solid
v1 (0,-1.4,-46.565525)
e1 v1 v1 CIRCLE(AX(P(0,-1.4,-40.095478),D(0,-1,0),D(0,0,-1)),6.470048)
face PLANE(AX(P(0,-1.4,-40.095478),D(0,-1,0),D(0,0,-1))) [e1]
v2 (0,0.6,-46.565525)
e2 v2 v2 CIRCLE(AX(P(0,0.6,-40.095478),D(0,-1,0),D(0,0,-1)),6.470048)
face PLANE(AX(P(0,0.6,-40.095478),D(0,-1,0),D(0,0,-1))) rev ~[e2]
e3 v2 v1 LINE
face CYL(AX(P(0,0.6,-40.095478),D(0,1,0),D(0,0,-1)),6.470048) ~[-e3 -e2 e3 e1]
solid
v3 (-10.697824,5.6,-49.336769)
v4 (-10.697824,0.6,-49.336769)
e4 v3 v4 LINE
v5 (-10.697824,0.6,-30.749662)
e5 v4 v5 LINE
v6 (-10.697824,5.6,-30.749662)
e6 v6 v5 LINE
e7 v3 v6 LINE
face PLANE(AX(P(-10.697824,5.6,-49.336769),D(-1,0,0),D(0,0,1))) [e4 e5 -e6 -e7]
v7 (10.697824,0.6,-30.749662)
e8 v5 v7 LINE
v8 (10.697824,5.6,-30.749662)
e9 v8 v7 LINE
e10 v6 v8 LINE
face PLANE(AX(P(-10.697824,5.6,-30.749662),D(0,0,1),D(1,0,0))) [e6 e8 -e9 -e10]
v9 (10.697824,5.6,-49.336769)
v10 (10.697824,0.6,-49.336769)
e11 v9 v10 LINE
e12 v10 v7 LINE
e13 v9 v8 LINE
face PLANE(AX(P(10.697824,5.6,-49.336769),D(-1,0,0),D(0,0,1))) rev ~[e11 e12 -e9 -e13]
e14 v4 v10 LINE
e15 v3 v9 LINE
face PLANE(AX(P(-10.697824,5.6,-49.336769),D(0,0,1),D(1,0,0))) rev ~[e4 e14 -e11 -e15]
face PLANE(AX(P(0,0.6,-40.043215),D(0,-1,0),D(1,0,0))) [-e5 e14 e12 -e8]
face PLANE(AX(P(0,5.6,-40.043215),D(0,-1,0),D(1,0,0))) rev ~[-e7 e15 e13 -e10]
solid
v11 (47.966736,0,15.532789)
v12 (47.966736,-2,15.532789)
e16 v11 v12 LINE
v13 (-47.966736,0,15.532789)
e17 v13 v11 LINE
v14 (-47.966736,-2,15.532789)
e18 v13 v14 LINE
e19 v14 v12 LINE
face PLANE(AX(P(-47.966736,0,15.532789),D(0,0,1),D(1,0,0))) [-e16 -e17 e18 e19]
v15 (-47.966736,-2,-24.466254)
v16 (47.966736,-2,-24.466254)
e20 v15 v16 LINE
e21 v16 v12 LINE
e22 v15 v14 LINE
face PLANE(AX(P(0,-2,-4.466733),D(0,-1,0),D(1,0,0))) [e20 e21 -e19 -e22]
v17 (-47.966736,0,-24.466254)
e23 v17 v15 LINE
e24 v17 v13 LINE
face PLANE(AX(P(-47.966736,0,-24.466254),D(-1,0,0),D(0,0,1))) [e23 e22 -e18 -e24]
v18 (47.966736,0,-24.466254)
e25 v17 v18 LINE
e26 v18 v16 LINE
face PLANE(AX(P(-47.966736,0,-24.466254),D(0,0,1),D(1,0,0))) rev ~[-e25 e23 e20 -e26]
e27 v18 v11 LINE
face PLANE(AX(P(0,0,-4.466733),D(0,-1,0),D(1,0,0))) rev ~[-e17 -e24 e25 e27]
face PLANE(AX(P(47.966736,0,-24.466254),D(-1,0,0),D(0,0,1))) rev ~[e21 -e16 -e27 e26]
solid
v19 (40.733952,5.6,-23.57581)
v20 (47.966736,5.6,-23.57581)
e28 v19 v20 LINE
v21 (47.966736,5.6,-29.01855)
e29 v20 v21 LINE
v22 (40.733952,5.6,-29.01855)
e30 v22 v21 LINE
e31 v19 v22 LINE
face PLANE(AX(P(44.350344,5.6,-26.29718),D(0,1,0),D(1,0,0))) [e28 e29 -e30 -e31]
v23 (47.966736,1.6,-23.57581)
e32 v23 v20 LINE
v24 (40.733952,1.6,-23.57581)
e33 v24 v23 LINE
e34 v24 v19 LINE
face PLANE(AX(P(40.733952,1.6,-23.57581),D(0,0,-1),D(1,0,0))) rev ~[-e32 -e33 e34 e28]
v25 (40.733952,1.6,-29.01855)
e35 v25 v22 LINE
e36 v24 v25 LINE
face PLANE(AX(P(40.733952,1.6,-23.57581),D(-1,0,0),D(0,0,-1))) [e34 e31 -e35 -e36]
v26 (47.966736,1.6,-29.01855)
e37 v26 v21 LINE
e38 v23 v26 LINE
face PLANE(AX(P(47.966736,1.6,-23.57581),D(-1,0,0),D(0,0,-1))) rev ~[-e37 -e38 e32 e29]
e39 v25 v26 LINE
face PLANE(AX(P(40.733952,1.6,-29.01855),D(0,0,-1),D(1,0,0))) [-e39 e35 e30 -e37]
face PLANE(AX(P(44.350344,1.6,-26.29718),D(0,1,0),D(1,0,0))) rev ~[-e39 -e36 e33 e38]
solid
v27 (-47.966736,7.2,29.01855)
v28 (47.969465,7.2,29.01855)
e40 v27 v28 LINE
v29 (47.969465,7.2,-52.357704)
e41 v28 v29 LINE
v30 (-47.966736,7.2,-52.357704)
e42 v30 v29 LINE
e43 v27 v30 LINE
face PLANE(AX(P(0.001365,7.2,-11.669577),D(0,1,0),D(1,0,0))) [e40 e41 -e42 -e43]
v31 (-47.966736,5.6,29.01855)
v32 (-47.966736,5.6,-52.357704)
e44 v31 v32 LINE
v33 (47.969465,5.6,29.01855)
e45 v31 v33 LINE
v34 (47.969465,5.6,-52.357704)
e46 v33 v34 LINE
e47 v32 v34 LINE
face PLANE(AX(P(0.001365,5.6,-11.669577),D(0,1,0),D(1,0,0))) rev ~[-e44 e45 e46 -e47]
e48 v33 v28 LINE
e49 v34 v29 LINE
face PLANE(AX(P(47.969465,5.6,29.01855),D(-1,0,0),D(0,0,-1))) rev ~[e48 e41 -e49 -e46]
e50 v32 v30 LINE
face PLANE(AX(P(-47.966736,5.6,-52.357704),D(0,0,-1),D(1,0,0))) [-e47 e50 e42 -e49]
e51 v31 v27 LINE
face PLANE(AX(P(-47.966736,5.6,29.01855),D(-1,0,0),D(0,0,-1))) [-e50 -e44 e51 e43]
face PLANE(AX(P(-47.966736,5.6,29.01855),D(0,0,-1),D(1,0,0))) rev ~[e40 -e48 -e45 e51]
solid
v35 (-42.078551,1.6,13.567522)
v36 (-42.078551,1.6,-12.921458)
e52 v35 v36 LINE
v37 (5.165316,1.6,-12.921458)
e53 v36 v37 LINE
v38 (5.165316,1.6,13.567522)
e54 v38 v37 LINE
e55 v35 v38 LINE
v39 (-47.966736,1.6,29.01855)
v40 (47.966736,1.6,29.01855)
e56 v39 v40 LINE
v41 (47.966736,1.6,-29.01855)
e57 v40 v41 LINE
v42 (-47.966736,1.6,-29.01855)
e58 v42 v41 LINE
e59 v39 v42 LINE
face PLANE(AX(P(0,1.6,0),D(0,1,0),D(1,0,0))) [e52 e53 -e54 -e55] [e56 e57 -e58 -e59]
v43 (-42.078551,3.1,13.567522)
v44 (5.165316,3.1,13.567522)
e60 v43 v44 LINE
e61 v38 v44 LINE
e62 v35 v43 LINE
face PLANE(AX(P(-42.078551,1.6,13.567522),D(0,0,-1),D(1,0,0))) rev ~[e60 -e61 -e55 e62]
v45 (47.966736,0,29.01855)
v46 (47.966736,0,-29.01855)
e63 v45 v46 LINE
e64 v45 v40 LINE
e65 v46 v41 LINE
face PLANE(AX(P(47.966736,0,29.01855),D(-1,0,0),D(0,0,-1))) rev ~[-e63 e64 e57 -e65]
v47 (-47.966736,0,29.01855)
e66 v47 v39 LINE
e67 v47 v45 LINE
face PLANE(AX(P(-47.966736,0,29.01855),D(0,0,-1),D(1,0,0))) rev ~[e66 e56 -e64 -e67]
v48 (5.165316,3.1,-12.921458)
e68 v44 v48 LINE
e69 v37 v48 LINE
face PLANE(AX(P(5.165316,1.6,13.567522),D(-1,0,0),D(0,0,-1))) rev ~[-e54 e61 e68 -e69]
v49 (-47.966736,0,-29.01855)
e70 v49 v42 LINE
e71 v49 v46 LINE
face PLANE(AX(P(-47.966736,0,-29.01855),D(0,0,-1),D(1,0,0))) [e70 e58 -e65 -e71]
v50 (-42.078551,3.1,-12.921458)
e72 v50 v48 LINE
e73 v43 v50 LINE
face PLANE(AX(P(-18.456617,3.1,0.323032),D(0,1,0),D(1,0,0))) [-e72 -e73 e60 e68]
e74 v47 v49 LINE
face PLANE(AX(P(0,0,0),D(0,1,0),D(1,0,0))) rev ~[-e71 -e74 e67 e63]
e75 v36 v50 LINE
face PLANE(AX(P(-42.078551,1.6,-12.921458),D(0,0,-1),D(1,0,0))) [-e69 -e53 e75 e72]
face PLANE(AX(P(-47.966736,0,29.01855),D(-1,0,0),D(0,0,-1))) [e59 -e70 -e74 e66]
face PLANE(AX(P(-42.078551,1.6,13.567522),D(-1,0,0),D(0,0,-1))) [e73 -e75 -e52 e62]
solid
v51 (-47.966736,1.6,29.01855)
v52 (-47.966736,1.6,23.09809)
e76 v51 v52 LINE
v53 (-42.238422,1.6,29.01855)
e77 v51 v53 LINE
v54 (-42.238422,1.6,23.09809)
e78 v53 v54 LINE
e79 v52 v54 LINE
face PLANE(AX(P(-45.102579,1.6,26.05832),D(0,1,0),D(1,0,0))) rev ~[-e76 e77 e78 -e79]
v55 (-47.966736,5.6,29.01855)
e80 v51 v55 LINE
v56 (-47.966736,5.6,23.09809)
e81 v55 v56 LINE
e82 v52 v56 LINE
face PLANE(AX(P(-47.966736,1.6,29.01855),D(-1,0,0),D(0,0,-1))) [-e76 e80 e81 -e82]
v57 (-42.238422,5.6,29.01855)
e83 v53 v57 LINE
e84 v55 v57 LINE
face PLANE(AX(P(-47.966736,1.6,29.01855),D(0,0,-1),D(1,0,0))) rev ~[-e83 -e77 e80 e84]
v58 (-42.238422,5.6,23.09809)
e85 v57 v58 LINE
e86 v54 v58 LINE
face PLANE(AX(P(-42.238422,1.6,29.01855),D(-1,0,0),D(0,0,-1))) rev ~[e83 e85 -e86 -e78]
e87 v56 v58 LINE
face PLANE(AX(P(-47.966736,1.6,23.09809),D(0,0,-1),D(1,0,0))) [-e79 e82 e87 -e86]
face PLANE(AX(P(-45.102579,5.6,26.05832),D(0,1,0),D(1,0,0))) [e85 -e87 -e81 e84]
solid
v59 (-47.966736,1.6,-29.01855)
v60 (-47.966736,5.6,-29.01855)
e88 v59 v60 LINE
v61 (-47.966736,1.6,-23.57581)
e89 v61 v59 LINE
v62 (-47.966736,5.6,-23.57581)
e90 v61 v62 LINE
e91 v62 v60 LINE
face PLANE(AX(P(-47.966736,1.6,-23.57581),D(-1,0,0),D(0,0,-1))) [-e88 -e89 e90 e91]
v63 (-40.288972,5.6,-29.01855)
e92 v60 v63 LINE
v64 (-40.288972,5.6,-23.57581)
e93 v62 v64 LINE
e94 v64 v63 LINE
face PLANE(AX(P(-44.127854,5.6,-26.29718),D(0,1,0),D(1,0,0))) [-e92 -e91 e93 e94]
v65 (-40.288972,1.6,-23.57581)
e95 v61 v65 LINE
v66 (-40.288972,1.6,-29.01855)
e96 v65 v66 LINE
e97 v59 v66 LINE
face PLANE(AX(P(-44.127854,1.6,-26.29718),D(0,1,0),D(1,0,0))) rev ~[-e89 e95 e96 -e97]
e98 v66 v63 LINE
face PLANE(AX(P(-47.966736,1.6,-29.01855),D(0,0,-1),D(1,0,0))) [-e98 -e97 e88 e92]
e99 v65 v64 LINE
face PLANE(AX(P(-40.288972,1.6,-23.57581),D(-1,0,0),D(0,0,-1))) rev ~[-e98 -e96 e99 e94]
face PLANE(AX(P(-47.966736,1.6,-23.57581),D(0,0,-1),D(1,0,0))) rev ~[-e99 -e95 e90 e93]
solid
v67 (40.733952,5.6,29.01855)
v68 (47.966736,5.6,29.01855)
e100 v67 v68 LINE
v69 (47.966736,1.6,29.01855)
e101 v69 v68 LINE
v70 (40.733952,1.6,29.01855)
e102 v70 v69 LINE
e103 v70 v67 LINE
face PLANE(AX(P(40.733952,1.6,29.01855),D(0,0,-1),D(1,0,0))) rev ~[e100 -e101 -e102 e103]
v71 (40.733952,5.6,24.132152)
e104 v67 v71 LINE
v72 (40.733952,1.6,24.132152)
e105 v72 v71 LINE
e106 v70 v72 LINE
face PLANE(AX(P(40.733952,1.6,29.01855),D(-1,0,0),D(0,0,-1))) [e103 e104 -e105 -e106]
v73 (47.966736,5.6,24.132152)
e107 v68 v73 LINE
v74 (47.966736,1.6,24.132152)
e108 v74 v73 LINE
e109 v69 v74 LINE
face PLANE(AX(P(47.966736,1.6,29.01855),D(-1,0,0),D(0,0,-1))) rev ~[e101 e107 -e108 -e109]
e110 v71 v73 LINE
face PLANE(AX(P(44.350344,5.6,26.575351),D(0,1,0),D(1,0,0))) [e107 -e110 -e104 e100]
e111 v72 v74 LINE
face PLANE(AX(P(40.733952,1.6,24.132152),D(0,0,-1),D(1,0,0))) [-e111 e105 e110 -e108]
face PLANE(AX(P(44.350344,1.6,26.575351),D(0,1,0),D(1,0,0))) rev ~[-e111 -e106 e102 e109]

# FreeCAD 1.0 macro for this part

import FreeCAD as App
import Part
import Sketcher

V = App.Vector

doc = App.newDocument("Part")
body = doc.addObject("PartDesign::Body", "Body")

# Sketch on XZ plane
sketch1 = body.newObject("Sketcher::SketchObject", "Sketch")
sketch1.AttachmentSupport = (doc.getObject("XZ_Plane"), [""])
sketch1.MapMode = "FlatFace"
sketch1.addGeometry([
    Part.LineSegment(V(-47.966736, -29.01855, 0), V(-47.966736, 29.01855, 0)),
    Part.LineSegment(V(-47.966736, 29.01855, 0), V(47.966736, 29.01855, 0)),
    Part.LineSegment(V(47.966736, 29.01855, 0), V(47.966736, -29.01855, 0)),
    Part.LineSegment(V(47.966736, -29.01855, 0), V(-47.966736, -29.01855, 0)),
], False)
sketch1.addConstraint([
    Sketcher.Constraint("Coincident", 0, 2, 1, 1),
    Sketcher.Constraint("Coincident", 1, 2, 2, 1),
    Sketcher.Constraint("Coincident", 2, 2, 3, 1),
    Sketcher.Constraint("Coincident", 3, 2, 0, 1),
    Sketcher.Constraint("Vertical", 0),
    Sketcher.Constraint("Horizontal", 1),
    Sketcher.Constraint("Vertical", 2),
    Sketcher.Constraint("Horizontal", 3),
    Sketcher.Constraint("Symmetric", 0, 2, 2, 2, -1, 1),
    Sketcher.Constraint("DistanceY", 0, 1, 0, 2, 58.0371),
    Sketcher.Constraint("DistanceX", 1, 1, 1, 2, 95.933471),
])
pad1 = body.newObject("PartDesign::Pad", "Pad")
pad1.Profile = sketch1
pad1.Length = 1.6
pad1.Reversed = True

# Sketch on XZ plane
sketch2 = body.newObject("Sketcher::SketchObject", "Sketch001")
sketch2.AttachmentSupport = (doc.getObject("XZ_Plane"), [""])
sketch2.MapMode = "FlatFace"
sketch2.AttachmentOffset = App.Placement(V(0, 0, -1.6), App.Rotation())
sketch2.addGeometry([
    Part.LineSegment(V(-42.078551, -12.921458, 0), V(-42.078551, 13.567522, 0)),
    Part.LineSegment(V(-42.078551, 13.567522, 0), V(5.165316, 13.567522, 0)),
    Part.LineSegment(V(5.165316, 13.567522, 0), V(5.165316, -12.921458, 0)),
    Part.LineSegment(V(5.165316, -12.921458, 0), V(-42.078551, -12.921458, 0)),
], False)
sketch2.addConstraint([
    Sketcher.Constraint("Coincident", 0, 2, 1, 1),
    Sketcher.Constraint("Coincident", 1, 2, 2, 1),
    Sketcher.Constraint("Coincident", 2, 2, 3, 1),
    Sketcher.Constraint("Coincident", 3, 2, 0, 1),
    Sketcher.Constraint("Vertical", 0),
    Sketcher.Constraint("Horizontal", 1),
    Sketcher.Constraint("Vertical", 2),
    Sketcher.Constraint("Horizontal", 3),
    Sketcher.Constraint("DistanceY", 0, 1, 0, 2, 26.48898),
    Sketcher.Constraint("DistanceX", 1, 1, 1, 2, 47.243868),
    Sketcher.Constraint("DistanceX", 0, 2, -1, 1, 42.078551),
    Sketcher.Constraint("DistanceY", -1, 1, 0, 2, 13.567522),
])
pad2 = body.newObject("PartDesign::Pad", "Pad001")
pad2.Profile = sketch2
pad2.Length = 1.5
pad2.Reversed = True
body2 = doc.addObject("PartDesign::Body", "Body001")

# Sketch on XZ plane
sketch3 = body2.newObject("Sketcher::SketchObject", "Sketch002")
sketch3.AttachmentSupport = (doc.getObject("XZ_Plane001"), [""])
sketch3.MapMode = "FlatFace"
sketch3.AttachmentOffset = App.Placement(V(0, 0, -1.6), App.Rotation())
sketch3.addGeometry([
    Part.LineSegment(V(-47.966736, -29.01855, 0), V(-47.966736, -23.57581, 0)),
    Part.LineSegment(V(-47.966736, -23.57581, 0), V(-40.288972, -23.57581, 0)),
    Part.LineSegment(V(-40.288972, -23.57581, 0), V(-40.288972, -29.01855, 0)),
    Part.LineSegment(V(-40.288972, -29.01855, 0), V(-47.966736, -29.01855, 0)),
], False)
sketch3.addConstraint([
    Sketcher.Constraint("Coincident", 0, 2, 1, 1),
    Sketcher.Constraint("Coincident", 1, 2, 2, 1),
    Sketcher.Constraint("Coincident", 2, 2, 3, 1),
    Sketcher.Constraint("Coincident", 3, 2, 0, 1),
    Sketcher.Constraint("Vertical", 0),
    Sketcher.Constraint("Horizontal", 1),
    Sketcher.Constraint("Vertical", 2),
    Sketcher.Constraint("Horizontal", 3),
    Sketcher.Constraint("DistanceY", 0, 1, 0, 2, 5.44274),
    Sketcher.Constraint("DistanceX", 1, 1, 1, 2, 7.677763),
    Sketcher.Constraint("DistanceY", 0, 2, -1, 1, 23.57581),
    Sketcher.Constraint("DistanceX", 0, 2, -1, 1, 47.966736),
])
pad3 = body2.newObject("PartDesign::Pad", "Pad002")
pad3.Profile = sketch3
pad3.Length = 4
pad3.Reversed = True
body3 = doc.addObject("PartDesign::Body", "Body002")

# Sketch on XZ plane
sketch4 = body3.newObject("Sketcher::SketchObject", "Sketch003")
sketch4.AttachmentSupport = (doc.getObject("XZ_Plane002"), [""])
sketch4.MapMode = "FlatFace"
sketch4.AttachmentOffset = App.Placement(V(0, 0, -1.6), App.Rotation())
sketch4.addGeometry([
    Part.LineSegment(V(-47.966736, 23.09809, 0), V(-47.966736, 29.01855, 0)),
    Part.LineSegment(V(-47.966736, 29.01855, 0), V(-42.238422, 29.01855, 0)),
    Part.LineSegment(V(-42.238422, 29.01855, 0), V(-42.238422, 23.09809, 0)),
    Part.LineSegment(V(-42.238422, 23.09809, 0), V(-47.966736, 23.09809, 0)),
], False)
sketch4.addConstraint([
    Sketcher.Constraint("Coincident", 0, 2, 1, 1),
    Sketcher.Constraint("Coincident", 1, 2, 2, 1),
    Sketcher.Constraint("Coincident", 2, 2, 3, 1),
    Sketcher.Constraint("Coincident", 3, 2, 0, 1),
    Sketcher.Constraint("Vertical", 0),
    Sketcher.Constraint("Horizontal", 1),
    Sketcher.Constraint("Vertical", 2),
    Sketcher.Constraint("Horizontal", 3),
    Sketcher.Constraint("DistanceY", 0, 1, 0, 2, 5.92046),
    Sketcher.Constraint("DistanceX", 1, 1, 1, 2, 5.728314),
    Sketcher.Constraint("DistanceY", -1, 1, 0, 2, 29.01855),
    Sketcher.Constraint("DistanceX", 1, 2, -1, 1, 42.238422),
])
pad4 = body3.newObject("PartDesign::Pad", "Pad003")
pad4.Profile = sketch4
pad4.Length = 4
pad4.Reversed = True
body4 = doc.addObject("PartDesign::Body", "Body003")

# Sketch on XZ plane
sketch5 = body4.newObject("Sketcher::SketchObject", "Sketch004")
sketch5.AttachmentSupport = (doc.getObject("XZ_Plane003"), [""])
sketch5.MapMode = "FlatFace"
sketch5.AttachmentOffset = App.Placement(V(0, 0, -1.6), App.Rotation())
sketch5.addGeometry([
    Part.LineSegment(V(40.733952, -29.01855, 0), V(40.733952, -23.57581, 0)),
    Part.LineSegment(V(40.733952, -23.57581, 0), V(47.966736, -23.57581, 0)),
    Part.LineSegment(V(47.966736, -23.57581, 0), V(47.966736, -29.01855, 0)),
    Part.LineSegment(V(47.966736, -29.01855, 0), V(40.733952, -29.01855, 0)),
], False)
sketch5.addConstraint([
    Sketcher.Constraint("Coincident", 0, 2, 1, 1),
    Sketcher.Constraint("Coincident", 1, 2, 2, 1),
    Sketcher.Constraint("Coincident", 2, 2, 3, 1),
    Sketcher.Constraint("Coincident", 3, 2, 0, 1),
    Sketcher.Constraint("Vertical", 0),
    Sketcher.Constraint("Horizontal", 1),
    Sketcher.Constraint("Vertical", 2),
    Sketcher.Constraint("Horizontal", 3),
    Sketcher.Constraint("DistanceY", 0, 1, 0, 2, 5.44274),
    Sketcher.Constraint("DistanceX", 1, 1, 1, 2, 7.232783),
    Sketcher.Constraint("DistanceY", 0, 2, -1, 1, 23.57581),
    Sketcher.Constraint("DistanceX", -1, 1, 0, 2, 40.733952),
])
pad5 = body4.newObject("PartDesign::Pad", "Pad004")
pad5.Profile = sketch5
pad5.Length = 4
pad5.Reversed = True
body5 = doc.addObject("PartDesign::Body", "Body004")

# Sketch on XZ plane
sketch6 = body5.newObject("Sketcher::SketchObject", "Sketch005")
sketch6.AttachmentSupport = (doc.getObject("XZ_Plane004"), [""])
sketch6.MapMode = "FlatFace"
sketch6.AttachmentOffset = App.Placement(V(0, 0, -1.6), App.Rotation())
sketch6.addGeometry([
    Part.LineSegment(V(40.733952, 24.132152, 0), V(40.733952, 29.01855, 0)),
    Part.LineSegment(V(40.733952, 29.01855, 0), V(47.966736, 29.01855, 0)),
    Part.LineSegment(V(47.966736, 29.01855, 0), V(47.966736, 24.132152, 0)),
    Part.LineSegment(V(47.966736, 24.132152, 0), V(40.733952, 24.132152, 0)),
], False)
sketch6.addConstraint([
    Sketcher.Constraint("Coincident", 0, 2, 1, 1),
    Sketcher.Constraint("Coincident", 1, 2, 2, 1),
    Sketcher.Constraint("Coincident", 2, 2, 3, 1),
    Sketcher.Constraint("Coincident", 3, 2, 0, 1),
    Sketcher.Constraint("Vertical", 0),
    Sketcher.Constraint("Horizontal", 1),
    Sketcher.Constraint("Vertical", 2),
    Sketcher.Constraint("Horizontal", 3),
    Sketcher.Constraint("DistanceX", 1, 1, 1, 2, 7.232783),
    Sketcher.Constraint("DistanceY", 0, 1, 0, 2, 4.886398),
    Sketcher.Constraint("DistanceY", -1, 1, 0, 2, 29.01855),
    Sketcher.Constraint("DistanceX", -1, 1, 0, 2, 40.733952),
])
pad6 = body5.newObject("PartDesign::Pad", "Pad005")
pad6.Profile = sketch6
pad6.Length = 4
pad6.Reversed = True
body6 = doc.addObject("PartDesign::Body", "Body005")

# Sketch on XZ plane
sketch7 = body6.newObject("Sketcher::SketchObject", "Sketch006")
sketch7.AttachmentSupport = (doc.getObject("XZ_Plane005"), [""])
sketch7.MapMode = "FlatFace"
sketch7.addGeometry([
    Part.LineSegment(V(-47.966736, 15.532789, 0), V(-47.966736, -24.466254, 0)),
    Part.LineSegment(V(-47.966736, -24.466254, 0), V(47.966736, -24.466254, 0)),
    Part.LineSegment(V(47.966736, -24.466254, 0), V(47.966736, 15.532789, 0)),
    Part.LineSegment(V(47.966736, 15.532789, 0), V(-47.966736, 15.532789, 0)),
], False)
sketch7.addConstraint([
    Sketcher.Constraint("Coincident", 0, 2, 1, 1),
    Sketcher.Constraint("Coincident", 1, 2, 2, 1),
    Sketcher.Constraint("Coincident", 2, 2, 3, 1),
    Sketcher.Constraint("Coincident", 3, 2, 0, 1),
    Sketcher.Constraint("Vertical", 0),
    Sketcher.Constraint("Horizontal", 1),
    Sketcher.Constraint("Vertical", 2),
    Sketcher.Constraint("Horizontal", 3),
    Sketcher.Constraint("DistanceX", 1, 1, 1, 2, 95.933471),
    Sketcher.Constraint("DistanceY", 0, 2, 0, 1, 39.999043),
    Sketcher.Constraint("DistanceY", -1, 1, 2, 2, 15.532789),
    Sketcher.Constraint("DistanceX", 0, 2, -1, 1, 47.966736),
])
pad7 = body6.newObject("PartDesign::Pad", "Pad006")
pad7.Profile = sketch7
pad7.Length = 2
body7 = doc.addObject("PartDesign::Body", "Body006")

# Sketch on XZ plane
sketch8 = body7.newObject("Sketcher::SketchObject", "Sketch007")
sketch8.AttachmentSupport = (doc.getObject("XZ_Plane006"), [""])
sketch8.MapMode = "FlatFace"
sketch8.AttachmentOffset = App.Placement(V(0, 0, -5.6), App.Rotation())
sketch8.addGeometry([
    Part.LineSegment(V(-47.966736, -52.357704, 0), V(-47.966736, 29.01855, 0)),
    Part.LineSegment(V(-47.966736, 29.01855, 0), V(47.969465, 29.01855, 0)),
    Part.LineSegment(V(47.969465, 29.01855, 0), V(47.969465, -52.357704, 0)),
    Part.LineSegment(V(47.969465, -52.357704, 0), V(-47.966736, -52.357704, 0)),
], False)
sketch8.addConstraint([
    Sketcher.Constraint("Coincident", 0, 2, 1, 1),
    Sketcher.Constraint("Coincident", 1, 2, 2, 1),
    Sketcher.Constraint("Coincident", 2, 2, 3, 1),
    Sketcher.Constraint("Coincident", 3, 2, 0, 1),
    Sketcher.Constraint("Vertical", 0),
    Sketcher.Constraint("Horizontal", 1),
    Sketcher.Constraint("Vertical", 2),
    Sketcher.Constraint("Horizontal", 3),
    Sketcher.Constraint("DistanceX", 1, 1, 1, 2, 95.936201),
    Sketcher.Constraint("DistanceY", 0, 1, 0, 2, 81.376254),
    Sketcher.Constraint("DistanceY", -1, 1, 0, 2, 29.01855),
    Sketcher.Constraint("DistanceX", 0, 2, -1, 1, 47.966736),
])
pad8 = body7.newObject("PartDesign::Pad", "Pad007")
pad8.Profile = sketch8
pad8.Length = 1.6
pad8.Reversed = True
body8 = doc.addObject("PartDesign::Body", "Body007")

# Sketch on XZ plane
sketch9 = body8.newObject("Sketcher::SketchObject", "Sketch008")
sketch9.AttachmentSupport = (doc.getObject("XZ_Plane007"), [""])
sketch9.MapMode = "FlatFace"
sketch9.AttachmentOffset = App.Placement(V(0, 0, -5.6), App.Rotation())
sketch9.addGeometry([
    Part.LineSegment(V(-10.697824, -30.749662, 0), V(-10.697824, -49.336769, 0)),
    Part.LineSegment(V(-10.697824, -49.336769, 0), V(10.697824, -49.336769, 0)),
    Part.LineSegment(V(10.697824, -49.336769, 0), V(10.697824, -30.749662, 0)),
    Part.LineSegment(V(10.697824, -30.749662, 0), V(-10.697824, -30.749662, 0)),
], False)
sketch9.addConstraint([
    Sketcher.Constraint("Coincident", 0, 2, 1, 1),
    Sketcher.Constraint("Coincident", 1, 2, 2, 1),
    Sketcher.Constraint("Coincident", 2, 2, 3, 1),
    Sketcher.Constraint("Coincident", 3, 2, 0, 1),
    Sketcher.Constraint("Vertical", 0),
    Sketcher.Constraint("Horizontal", 1),
    Sketcher.Constraint("Vertical", 2),
    Sketcher.Constraint("Horizontal", 3),
    Sketcher.Constraint("DistanceX", 1, 1, 1, 2, 21.395649),
    Sketcher.Constraint("DistanceY", 0, 2, 0, 1, 18.587107),
    Sketcher.Constraint("DistanceY", 0, 2, -1, 1, 49.336769),
    Sketcher.Constraint("DistanceX", 0, 2, -1, 1, 10.697824),
])
pad9 = body8.newObject("PartDesign::Pad", "Pad008")
pad9.Profile = sketch9
pad9.Length = 5
body9 = doc.addObject("PartDesign::Body", "Body008")

# Sketch on XZ plane
sketch10 = body9.newObject("Sketcher::SketchObject", "Sketch009")
sketch10.AttachmentSupport = (doc.getObject("XZ_Plane008"), [""])
sketch10.MapMode = "FlatFace"
sketch10.AttachmentOffset = App.Placement(V(0, 0, -0.6), App.Rotation())
sketch10.addGeometry(Part.Circle(V(0, -40.095478, 0), V(0, 0, 1), 6.470048), False)
sketch10.addConstraint([
    Sketcher.Constraint("PointOnObject", 0, 3, -2),
    Sketcher.Constraint("Diameter", 0, 12.940095),
    Sketcher.Constraint("DistanceY", 0, 3, -1, 1, 40.095478),
])
pad10 = body9.newObject("PartDesign::Pad", "Pad009")
pad10.Profile = sketch10
pad10.Length = 2

doc.recompute()
